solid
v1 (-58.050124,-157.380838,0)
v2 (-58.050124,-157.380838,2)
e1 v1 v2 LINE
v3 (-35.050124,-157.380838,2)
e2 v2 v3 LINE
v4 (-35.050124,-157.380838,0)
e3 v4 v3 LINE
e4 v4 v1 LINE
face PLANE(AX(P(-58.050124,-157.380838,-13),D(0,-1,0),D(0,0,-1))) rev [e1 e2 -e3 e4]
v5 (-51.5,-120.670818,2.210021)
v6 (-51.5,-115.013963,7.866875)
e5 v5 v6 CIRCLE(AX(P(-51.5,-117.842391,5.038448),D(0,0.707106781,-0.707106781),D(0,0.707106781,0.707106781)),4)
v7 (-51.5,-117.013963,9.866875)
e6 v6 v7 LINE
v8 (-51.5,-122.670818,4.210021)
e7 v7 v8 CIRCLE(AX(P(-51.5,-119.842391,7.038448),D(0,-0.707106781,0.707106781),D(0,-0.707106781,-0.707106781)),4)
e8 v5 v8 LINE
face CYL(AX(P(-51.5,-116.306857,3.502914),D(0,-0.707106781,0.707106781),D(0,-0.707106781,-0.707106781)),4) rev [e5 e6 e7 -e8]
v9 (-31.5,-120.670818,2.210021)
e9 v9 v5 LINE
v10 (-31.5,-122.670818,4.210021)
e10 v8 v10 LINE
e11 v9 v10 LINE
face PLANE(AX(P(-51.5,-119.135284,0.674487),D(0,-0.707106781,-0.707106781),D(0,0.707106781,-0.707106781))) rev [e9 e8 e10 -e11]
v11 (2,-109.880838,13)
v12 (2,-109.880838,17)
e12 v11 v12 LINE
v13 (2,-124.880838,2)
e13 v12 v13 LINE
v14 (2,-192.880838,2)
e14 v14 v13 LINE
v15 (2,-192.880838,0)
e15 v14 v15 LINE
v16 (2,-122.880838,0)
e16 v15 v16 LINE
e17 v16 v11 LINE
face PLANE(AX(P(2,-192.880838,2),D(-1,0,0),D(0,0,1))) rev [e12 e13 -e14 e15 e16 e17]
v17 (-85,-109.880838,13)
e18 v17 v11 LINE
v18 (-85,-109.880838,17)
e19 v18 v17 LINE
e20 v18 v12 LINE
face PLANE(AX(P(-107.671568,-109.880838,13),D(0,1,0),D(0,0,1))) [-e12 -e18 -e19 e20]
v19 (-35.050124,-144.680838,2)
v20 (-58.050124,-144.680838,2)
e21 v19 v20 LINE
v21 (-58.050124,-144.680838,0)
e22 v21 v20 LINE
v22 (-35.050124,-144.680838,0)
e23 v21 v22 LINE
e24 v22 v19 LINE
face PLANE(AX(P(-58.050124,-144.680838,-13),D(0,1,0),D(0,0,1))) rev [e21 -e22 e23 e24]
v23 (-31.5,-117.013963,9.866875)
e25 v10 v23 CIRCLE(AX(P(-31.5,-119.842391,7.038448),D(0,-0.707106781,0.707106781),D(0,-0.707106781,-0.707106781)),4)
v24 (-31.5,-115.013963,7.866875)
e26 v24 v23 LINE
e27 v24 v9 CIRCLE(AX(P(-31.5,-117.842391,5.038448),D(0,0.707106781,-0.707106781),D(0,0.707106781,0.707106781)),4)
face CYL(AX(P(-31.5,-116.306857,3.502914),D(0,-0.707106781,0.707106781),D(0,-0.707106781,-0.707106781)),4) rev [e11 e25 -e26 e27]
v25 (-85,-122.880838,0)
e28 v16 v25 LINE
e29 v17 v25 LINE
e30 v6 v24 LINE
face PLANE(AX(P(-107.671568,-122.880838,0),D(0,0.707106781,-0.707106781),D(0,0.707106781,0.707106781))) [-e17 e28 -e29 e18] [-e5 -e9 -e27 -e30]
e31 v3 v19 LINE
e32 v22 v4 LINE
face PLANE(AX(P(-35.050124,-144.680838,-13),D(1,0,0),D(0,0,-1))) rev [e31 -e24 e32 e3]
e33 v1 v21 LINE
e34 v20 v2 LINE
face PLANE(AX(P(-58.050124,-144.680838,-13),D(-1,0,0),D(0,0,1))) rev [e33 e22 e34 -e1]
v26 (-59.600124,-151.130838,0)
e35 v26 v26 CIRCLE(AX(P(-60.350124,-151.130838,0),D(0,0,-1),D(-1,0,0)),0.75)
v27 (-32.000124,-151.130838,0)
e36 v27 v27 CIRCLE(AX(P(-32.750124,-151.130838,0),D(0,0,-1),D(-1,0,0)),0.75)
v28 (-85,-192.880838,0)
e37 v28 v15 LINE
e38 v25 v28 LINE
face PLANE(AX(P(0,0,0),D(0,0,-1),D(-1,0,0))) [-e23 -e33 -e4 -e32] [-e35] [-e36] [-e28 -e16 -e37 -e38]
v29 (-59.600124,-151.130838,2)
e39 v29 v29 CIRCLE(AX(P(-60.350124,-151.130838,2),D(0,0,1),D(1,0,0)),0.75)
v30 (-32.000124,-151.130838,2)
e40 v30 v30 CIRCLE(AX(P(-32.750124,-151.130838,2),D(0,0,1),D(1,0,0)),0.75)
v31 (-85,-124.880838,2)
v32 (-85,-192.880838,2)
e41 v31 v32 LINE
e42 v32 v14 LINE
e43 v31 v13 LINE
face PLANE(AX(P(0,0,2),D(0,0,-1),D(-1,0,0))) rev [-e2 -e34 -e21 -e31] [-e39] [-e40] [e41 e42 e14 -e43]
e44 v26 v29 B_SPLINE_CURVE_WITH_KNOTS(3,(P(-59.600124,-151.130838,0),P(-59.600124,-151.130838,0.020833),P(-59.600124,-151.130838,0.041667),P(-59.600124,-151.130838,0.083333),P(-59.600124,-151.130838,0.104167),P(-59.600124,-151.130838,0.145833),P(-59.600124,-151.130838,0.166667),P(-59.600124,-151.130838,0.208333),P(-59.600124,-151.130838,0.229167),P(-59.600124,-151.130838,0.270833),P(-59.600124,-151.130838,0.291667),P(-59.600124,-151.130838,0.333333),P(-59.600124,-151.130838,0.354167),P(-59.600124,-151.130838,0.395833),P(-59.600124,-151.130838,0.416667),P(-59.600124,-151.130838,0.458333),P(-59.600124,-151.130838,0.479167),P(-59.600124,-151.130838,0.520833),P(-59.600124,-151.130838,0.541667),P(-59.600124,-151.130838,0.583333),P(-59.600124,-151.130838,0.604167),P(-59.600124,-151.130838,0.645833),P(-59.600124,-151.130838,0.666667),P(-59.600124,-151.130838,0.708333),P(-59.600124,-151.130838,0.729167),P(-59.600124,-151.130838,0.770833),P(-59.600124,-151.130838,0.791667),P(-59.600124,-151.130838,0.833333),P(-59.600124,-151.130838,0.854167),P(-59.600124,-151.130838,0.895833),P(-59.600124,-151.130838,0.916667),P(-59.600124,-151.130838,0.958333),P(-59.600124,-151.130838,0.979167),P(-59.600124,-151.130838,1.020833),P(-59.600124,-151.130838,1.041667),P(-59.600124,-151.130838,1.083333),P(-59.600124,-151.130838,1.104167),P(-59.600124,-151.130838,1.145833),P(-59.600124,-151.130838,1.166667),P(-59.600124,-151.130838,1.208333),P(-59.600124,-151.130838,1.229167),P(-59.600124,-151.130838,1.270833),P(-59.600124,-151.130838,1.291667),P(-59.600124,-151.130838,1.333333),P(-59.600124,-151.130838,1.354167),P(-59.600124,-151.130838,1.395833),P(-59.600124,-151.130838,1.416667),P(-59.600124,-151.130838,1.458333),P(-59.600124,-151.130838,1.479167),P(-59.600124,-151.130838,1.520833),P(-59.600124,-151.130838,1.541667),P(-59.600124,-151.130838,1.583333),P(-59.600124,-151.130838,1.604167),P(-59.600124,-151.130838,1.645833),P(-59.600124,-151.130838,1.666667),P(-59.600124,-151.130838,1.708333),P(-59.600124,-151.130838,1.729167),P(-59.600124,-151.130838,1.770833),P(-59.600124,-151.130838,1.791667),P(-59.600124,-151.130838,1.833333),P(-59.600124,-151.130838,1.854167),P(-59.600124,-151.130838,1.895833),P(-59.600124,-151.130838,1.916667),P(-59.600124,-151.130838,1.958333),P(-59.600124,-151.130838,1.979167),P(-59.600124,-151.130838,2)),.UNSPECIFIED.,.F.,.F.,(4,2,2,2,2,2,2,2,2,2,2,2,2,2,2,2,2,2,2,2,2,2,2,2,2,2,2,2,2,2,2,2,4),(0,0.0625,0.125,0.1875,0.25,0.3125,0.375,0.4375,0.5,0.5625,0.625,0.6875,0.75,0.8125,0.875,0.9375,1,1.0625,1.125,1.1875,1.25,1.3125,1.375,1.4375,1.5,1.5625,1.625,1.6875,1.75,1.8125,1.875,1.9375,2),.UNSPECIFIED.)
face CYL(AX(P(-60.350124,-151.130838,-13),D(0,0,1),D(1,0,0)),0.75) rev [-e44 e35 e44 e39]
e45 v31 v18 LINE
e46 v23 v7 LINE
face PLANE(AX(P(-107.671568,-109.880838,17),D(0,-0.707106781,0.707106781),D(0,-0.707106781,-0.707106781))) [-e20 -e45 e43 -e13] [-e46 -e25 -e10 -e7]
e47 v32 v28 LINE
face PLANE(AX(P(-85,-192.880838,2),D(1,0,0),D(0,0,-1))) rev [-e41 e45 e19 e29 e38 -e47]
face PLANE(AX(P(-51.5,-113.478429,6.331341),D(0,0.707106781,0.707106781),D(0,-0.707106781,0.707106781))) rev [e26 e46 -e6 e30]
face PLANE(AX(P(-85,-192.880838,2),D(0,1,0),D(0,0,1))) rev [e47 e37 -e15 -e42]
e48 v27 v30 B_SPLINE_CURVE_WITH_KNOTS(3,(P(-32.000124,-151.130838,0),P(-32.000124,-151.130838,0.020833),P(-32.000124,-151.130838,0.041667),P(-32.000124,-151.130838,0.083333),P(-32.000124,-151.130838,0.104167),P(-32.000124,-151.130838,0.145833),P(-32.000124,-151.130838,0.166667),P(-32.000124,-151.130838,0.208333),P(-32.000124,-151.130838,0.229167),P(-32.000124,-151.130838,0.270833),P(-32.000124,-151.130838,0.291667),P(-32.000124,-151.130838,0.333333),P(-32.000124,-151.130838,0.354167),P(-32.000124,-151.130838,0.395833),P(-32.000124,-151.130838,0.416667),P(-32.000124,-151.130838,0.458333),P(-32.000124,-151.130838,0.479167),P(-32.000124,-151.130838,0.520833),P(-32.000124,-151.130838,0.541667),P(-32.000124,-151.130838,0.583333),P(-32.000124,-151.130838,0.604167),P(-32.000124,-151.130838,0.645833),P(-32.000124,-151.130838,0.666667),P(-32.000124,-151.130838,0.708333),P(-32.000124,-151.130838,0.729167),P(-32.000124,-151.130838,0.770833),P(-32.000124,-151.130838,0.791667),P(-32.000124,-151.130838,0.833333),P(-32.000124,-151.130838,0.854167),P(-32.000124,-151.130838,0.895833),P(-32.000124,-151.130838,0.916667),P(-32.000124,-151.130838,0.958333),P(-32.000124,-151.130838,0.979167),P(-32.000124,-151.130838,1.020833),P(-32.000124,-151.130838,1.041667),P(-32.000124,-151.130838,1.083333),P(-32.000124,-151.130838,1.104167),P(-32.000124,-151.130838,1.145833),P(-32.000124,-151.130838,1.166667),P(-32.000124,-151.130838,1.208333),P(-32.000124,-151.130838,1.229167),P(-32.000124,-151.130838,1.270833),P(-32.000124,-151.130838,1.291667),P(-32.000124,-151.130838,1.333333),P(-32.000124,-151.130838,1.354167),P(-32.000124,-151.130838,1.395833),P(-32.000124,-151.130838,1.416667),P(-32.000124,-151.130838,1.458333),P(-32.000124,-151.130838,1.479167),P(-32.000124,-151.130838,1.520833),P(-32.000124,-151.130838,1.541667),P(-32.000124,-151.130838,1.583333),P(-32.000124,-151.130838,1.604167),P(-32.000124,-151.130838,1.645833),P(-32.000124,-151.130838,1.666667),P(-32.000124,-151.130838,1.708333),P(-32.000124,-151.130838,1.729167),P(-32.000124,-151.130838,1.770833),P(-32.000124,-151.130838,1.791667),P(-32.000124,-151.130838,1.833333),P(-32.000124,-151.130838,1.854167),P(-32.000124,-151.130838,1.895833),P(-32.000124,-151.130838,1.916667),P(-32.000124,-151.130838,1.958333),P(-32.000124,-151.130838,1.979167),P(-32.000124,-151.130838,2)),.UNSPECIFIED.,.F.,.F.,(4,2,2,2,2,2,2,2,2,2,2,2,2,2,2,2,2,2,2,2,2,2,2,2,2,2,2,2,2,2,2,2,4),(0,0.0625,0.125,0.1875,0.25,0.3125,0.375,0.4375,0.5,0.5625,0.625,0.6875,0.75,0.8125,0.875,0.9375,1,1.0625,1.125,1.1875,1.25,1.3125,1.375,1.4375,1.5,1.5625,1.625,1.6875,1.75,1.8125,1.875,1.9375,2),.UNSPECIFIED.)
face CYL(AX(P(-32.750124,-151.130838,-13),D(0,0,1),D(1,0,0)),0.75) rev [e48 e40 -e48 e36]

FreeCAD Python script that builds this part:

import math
import FreeCAD as App
import Part
import Sketcher

V = App.Vector
Q = App.Units.Quantity


def add_polygon(sketch, points):
    """Adds a closed chain of lines whose ends are joined by coincident constraints."""
    first, n = sketch.GeometryCount, len(points)
    for a, b in zip(points, points[1:] + points[:1]):
        sketch.addGeometry(Part.LineSegment(App.Vector(*a, 0), App.Vector(*b, 0)), False)
    for i in range(n):
        sketch.addConstraint(Sketcher.Constraint("Coincident", first + i, 2, first + (i + 1) % n, 1))

doc = App.newDocument("Part")
body = doc.addObject("PartDesign::Body", "Body")

# Sketch on XY plane
sketch1 = body.newObject("Sketcher::SketchObject", "Sketch")
sketch1.AttachmentSupport = (doc.getObject("XY_Plane"), [""])
sketch1.MapMode = "FlatFace"
add_polygon(sketch1, [(-85, -122.880838), (-85, -192.880838), (2, -192.880838), (2, -122.880838)])  # lines 0-3
sketch1.addConstraint(Sketcher.Constraint("Vertical", 0))
sketch1.addConstraint(Sketcher.Constraint("Horizontal", 1))
sketch1.addConstraint(Sketcher.Constraint("Vertical", 2))
sketch1.addConstraint(Sketcher.Constraint("Horizontal", 3))
sketch1.addConstraint(Sketcher.Constraint("DistanceX", 1, 1, 1, 2, 87.0))
sketch1.addConstraint(Sketcher.Constraint("DistanceY", 0, 2, 0, 1, 70.0))
sketch1.addConstraint(Sketcher.Constraint("DistanceX", 0, 2, -1, 1, 85.0))
sketch1.addConstraint(Sketcher.Constraint("DistanceY", 0, 2, -1, 1, 192.880838))
pad1 = body.newObject("PartDesign::Pad", "Pad")
pad1.Profile = sketch1
pad1.Length = 2

# Sketch on YZ plane
sketch2 = body.newObject("Sketcher::SketchObject", "Sketch001")
sketch2.AttachmentSupport = (doc.getObject("YZ_Plane"), [""])
sketch2.MapMode = "FlatFace"
sketch2.AttachmentOffset = App.Placement(V(0, 0, 2), App.Rotation())
add_polygon(sketch2, [(-109.880838, 17), (-124.880838, 2), (-122.880838, 0), (-109.880838, 13)])  # lines 0-3
sketch2.addConstraint(Sketcher.Constraint("Vertical", 3))
sketch2.addConstraint(Sketcher.Constraint("PointOnObject", 1, 2, -1))
sketch2.addConstraint(Sketcher.Constraint("Perpendicular", 0, 1))
sketch2.addConstraint(Sketcher.Constraint("Perpendicular", 1, 2))
sketch2.addConstraint(Sketcher.Constraint("DistanceY", 3, 1, 3, 2, 4.0))
sketch2.addConstraint(Sketcher.Constraint("Angle", 0, Q("-135 deg")))
sketch2.addConstraint(Sketcher.Constraint("DistanceY", -1, 1, 2, 2, 13.0))
sketch2.addConstraint(Sketcher.Constraint("DistanceX", 0, 2, -1, 1, 124.880838))
pad2 = body.newObject("PartDesign::Pad", "Pad001")
pad2.Profile = sketch2
pad2.Length = 87
pad2.Reversed = True

# Sketch on XY plane
sketch3 = body.newObject("Sketcher::SketchObject", "Sketch002")
sketch3.AttachmentSupport = (doc.getObject("XY_Plane"), [""])
sketch3.MapMode = "FlatFace"
sketch3.AttachmentOffset = App.Placement(V(0, 0, 2), App.Rotation())
add_polygon(sketch3, [(-58.050124, -144.680838), (-58.050124, -157.380838), (-35.050124, -157.380838), (-35.050124, -144.680838)])  # lines 0-3
sketch3.addConstraint(Sketcher.Constraint("Vertical", 0))
sketch3.addConstraint(Sketcher.Constraint("Horizontal", 1))
sketch3.addConstraint(Sketcher.Constraint("Vertical", 2))
sketch3.addConstraint(Sketcher.Constraint("Horizontal", 3))
sketch3.addConstraint(Sketcher.Constraint("DistanceX", 1, 1, 1, 2, 23.0))
sketch3.addConstraint(Sketcher.Constraint("DistanceY", 0, 2, 0, 1, 12.7))
sketch3.addConstraint(Sketcher.Constraint("DistanceY", 0, 2, -1, 1, 157.380838))
sketch3.addConstraint(Sketcher.Constraint("DistanceX", 0, 2, -1, 1, 58.050124))
pocket1 = body.newObject("PartDesign::Pocket", "Pocket")
pocket1.Profile = sketch3
pocket1.Length = 15

# Sketch on XY plane
sketch4 = body.newObject("Sketcher::SketchObject", "Sketch003")
sketch4.AttachmentSupport = (doc.getObject("XY_Plane"), [""])
sketch4.MapMode = "FlatFace"
sketch4.AttachmentOffset = App.Placement(V(0, 0, 2), App.Rotation())
sketch4.addGeometry(Part.Circle(V(-32.750124, -151.130838, 0), V(0, 0, 1), 0.75), False)
sketch4.addGeometry(Part.Circle(V(-60.350124, -151.130838, 0), V(0, 0, 1), 0.75), False)
sketch4.addConstraint(Sketcher.Constraint("Equal", 0, 1))
sketch4.addConstraint(Sketcher.Constraint("Horizontal", 0, 3, 1, 3))
sketch4.addConstraint(Sketcher.Constraint("Diameter", 0, 1.5))
sketch4.addConstraint(Sketcher.Constraint("DistanceX", 1, 3, 0, 3, 27.6))
sketch4.addConstraint(Sketcher.Constraint("DistanceY", 0, 3, -1, 1, 151.130838))
sketch4.addConstraint(Sketcher.Constraint("DistanceX", 0, 3, -1, 1, 32.750124))
pocket2 = body.newObject("PartDesign::Pocket", "Pocket001")
pocket2.Profile = sketch4
pocket2.Length = 15

# Sketch on an angled plane
sketch5 = body.newObject("Sketcher::SketchObject", "Sketch004")
sketch5.Placement = App.Placement(V(0, -63.440419, 63.440419), App.Rotation(V(1, 0, 0), V(0, 0.707106781, 0.707106781), V(0, -0.707106781, 0.707106781), "ZXY"))
sketch5.addGeometry(Part.LineSegment(V(-31.5, -75.764433, 0), V(-51.5, -75.764433, 0)), False)
sketch5.addGeometry(Part.ArcOfCircle(Part.Circle(V(-51.5, -79.764433, 0), V(0, 0, 1), 4), math.radians(90), math.radians(270)), False)
sketch5.addGeometry(Part.LineSegment(V(-51.5, -83.764433, 0), V(-31.5, -83.764433, 0)), False)
sketch5.addGeometry(Part.ArcOfCircle(Part.Circle(V(-31.5, -79.764433, 0), V(0, 0, 1), 4), math.radians(-90), math.radians(90)), False)
sketch5.addConstraint(Sketcher.Constraint("Tangent", 0, 2, 1, 1))
sketch5.addConstraint(Sketcher.Constraint("Tangent", 1, 2, 2, 1))
sketch5.addConstraint(Sketcher.Constraint("Tangent", 2, 2, 3, 1))
sketch5.addConstraint(Sketcher.Constraint("Tangent", 3, 2, 0, 1))
sketch5.addConstraint(Sketcher.Constraint("Horizontal", 0))
sketch5.addConstraint(Sketcher.Constraint("Horizontal", 2))
sketch5.addConstraint(Sketcher.Constraint("Radius", 1, 4.0))
sketch5.addConstraint(Sketcher.Constraint("DistanceX", 0, 2, 0, 1, 20.0))
sketch5.addConstraint(Sketcher.Constraint("DistanceX", 1, 3, -1, 1, 51.5))
sketch5.addConstraint(Sketcher.Constraint("DistanceY", 1, 3, -1, 1, 79.764433))
pocket3 = body.newObject("PartDesign::Pocket", "Pocket002")
pocket3.Profile = sketch5
pocket3.Length = 5

doc.recompute()
